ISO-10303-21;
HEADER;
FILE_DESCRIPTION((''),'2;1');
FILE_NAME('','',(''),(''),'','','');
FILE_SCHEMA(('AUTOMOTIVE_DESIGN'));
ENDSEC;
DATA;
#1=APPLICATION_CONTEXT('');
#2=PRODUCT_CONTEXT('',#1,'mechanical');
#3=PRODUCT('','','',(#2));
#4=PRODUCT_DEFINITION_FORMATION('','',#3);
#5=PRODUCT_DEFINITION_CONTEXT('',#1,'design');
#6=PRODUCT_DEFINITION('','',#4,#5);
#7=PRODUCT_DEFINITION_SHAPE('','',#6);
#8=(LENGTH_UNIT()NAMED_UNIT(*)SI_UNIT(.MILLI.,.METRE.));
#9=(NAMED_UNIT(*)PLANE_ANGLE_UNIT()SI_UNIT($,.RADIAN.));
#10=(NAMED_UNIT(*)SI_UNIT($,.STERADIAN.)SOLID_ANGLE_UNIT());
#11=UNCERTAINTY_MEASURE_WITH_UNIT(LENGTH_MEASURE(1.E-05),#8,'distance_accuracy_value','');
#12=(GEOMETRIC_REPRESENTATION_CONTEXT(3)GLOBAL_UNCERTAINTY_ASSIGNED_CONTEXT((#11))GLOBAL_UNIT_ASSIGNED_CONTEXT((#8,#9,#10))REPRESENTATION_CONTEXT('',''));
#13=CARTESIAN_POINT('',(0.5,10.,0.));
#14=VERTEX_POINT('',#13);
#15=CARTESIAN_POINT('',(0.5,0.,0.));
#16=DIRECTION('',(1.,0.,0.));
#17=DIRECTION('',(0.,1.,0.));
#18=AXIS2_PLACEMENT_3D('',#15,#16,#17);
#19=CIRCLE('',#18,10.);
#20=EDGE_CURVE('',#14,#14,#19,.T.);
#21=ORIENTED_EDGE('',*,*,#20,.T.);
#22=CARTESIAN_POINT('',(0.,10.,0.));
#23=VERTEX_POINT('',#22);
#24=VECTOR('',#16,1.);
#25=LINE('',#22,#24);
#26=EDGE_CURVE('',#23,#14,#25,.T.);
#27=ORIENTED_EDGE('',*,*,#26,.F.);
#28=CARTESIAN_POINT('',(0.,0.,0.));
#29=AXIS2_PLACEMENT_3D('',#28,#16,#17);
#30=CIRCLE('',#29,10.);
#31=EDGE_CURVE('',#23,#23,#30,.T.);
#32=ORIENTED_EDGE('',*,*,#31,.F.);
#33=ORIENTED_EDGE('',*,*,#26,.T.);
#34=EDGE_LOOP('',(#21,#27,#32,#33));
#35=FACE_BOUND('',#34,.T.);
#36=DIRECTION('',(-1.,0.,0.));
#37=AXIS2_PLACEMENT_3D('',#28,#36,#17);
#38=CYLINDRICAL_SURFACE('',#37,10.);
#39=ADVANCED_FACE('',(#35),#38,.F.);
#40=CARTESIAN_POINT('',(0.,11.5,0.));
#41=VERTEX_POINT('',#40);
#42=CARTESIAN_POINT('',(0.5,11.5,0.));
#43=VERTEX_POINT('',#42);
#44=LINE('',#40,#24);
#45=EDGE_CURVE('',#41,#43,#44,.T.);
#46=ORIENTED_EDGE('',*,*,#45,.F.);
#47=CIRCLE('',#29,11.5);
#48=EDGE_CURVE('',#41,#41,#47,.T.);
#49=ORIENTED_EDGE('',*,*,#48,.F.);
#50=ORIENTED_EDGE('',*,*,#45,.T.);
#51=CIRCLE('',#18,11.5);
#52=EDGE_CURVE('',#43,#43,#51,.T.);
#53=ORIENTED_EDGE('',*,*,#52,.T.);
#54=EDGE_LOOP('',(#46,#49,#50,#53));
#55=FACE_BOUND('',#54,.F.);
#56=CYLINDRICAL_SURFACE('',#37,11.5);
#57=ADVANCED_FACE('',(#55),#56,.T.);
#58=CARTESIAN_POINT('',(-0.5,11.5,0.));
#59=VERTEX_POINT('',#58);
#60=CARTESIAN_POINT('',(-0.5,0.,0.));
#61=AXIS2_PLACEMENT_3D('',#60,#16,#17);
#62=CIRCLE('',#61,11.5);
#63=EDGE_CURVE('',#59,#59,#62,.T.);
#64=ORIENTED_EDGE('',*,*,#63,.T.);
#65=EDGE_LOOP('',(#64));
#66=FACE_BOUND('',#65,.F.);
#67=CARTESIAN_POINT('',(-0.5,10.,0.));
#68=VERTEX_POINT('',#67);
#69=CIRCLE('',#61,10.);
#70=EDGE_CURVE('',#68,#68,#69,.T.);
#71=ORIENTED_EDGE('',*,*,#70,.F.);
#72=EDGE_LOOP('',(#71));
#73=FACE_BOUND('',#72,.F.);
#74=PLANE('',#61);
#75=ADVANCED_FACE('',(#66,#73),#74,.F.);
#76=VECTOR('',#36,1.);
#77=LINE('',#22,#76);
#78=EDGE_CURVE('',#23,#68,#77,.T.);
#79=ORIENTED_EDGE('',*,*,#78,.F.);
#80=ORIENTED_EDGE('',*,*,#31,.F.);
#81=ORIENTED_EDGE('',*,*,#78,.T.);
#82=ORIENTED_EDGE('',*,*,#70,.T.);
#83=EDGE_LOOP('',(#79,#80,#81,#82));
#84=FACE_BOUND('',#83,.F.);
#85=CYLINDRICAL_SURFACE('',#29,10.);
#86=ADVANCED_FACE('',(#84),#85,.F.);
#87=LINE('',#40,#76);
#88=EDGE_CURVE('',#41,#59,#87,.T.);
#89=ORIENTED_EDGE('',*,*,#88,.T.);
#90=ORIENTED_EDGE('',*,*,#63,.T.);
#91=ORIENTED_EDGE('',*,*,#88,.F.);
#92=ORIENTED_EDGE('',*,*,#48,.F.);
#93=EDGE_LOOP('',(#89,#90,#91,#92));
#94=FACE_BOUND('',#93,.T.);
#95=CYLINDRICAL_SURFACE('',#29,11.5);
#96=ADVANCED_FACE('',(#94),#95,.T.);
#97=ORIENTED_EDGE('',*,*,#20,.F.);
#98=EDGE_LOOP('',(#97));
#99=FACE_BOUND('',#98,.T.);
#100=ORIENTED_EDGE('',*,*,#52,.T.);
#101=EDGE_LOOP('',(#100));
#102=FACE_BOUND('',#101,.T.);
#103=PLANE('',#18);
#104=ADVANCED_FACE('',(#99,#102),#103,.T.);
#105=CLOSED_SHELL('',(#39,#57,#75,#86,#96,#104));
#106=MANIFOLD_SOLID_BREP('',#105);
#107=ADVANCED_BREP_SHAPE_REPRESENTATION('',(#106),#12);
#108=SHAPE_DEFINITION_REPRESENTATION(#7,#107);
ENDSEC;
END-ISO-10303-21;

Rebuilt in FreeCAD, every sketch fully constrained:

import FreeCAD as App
import Part
import Sketcher
from FreeCAD import Vector
Q = App.Units.Quantity

doc = App.newDocument("Part")
body = doc.addObject("PartDesign::Body", "Body")

sketch1 = doc.addObject("Sketcher::SketchObject", "Sketch")
body.addObject(sketch1)
sketch1.AttachmentSupport = (doc.YZ_Plane, [""])
sketch1.MapMode = "FlatFace"
sketch1.addGeometry([
    Part.Circle(Vector(0, 0, 0), Vector(0, 0, 1), 12),
    Part.Circle(Vector(0, 0, 0), Vector(0, 0, 1), 10),
], False)
sketch1.addConstraint([
    Sketcher.Constraint("Coincident", 0, 3, -1, 1),
    Sketcher.Constraint("Coincident", 1, 3, -1, 1),
    Sketcher.Constraint("Diameter", 0, Q("23 mm")),
    Sketcher.Constraint("Diameter", 1, Q("20 mm")),
])
pad1 = doc.addObject("PartDesign::Pad", "Pad")
body.addObject(pad1)
pad1.Profile = sketch1
pad1.Length = 1
pad1.Midplane = True

doc.recompute()
